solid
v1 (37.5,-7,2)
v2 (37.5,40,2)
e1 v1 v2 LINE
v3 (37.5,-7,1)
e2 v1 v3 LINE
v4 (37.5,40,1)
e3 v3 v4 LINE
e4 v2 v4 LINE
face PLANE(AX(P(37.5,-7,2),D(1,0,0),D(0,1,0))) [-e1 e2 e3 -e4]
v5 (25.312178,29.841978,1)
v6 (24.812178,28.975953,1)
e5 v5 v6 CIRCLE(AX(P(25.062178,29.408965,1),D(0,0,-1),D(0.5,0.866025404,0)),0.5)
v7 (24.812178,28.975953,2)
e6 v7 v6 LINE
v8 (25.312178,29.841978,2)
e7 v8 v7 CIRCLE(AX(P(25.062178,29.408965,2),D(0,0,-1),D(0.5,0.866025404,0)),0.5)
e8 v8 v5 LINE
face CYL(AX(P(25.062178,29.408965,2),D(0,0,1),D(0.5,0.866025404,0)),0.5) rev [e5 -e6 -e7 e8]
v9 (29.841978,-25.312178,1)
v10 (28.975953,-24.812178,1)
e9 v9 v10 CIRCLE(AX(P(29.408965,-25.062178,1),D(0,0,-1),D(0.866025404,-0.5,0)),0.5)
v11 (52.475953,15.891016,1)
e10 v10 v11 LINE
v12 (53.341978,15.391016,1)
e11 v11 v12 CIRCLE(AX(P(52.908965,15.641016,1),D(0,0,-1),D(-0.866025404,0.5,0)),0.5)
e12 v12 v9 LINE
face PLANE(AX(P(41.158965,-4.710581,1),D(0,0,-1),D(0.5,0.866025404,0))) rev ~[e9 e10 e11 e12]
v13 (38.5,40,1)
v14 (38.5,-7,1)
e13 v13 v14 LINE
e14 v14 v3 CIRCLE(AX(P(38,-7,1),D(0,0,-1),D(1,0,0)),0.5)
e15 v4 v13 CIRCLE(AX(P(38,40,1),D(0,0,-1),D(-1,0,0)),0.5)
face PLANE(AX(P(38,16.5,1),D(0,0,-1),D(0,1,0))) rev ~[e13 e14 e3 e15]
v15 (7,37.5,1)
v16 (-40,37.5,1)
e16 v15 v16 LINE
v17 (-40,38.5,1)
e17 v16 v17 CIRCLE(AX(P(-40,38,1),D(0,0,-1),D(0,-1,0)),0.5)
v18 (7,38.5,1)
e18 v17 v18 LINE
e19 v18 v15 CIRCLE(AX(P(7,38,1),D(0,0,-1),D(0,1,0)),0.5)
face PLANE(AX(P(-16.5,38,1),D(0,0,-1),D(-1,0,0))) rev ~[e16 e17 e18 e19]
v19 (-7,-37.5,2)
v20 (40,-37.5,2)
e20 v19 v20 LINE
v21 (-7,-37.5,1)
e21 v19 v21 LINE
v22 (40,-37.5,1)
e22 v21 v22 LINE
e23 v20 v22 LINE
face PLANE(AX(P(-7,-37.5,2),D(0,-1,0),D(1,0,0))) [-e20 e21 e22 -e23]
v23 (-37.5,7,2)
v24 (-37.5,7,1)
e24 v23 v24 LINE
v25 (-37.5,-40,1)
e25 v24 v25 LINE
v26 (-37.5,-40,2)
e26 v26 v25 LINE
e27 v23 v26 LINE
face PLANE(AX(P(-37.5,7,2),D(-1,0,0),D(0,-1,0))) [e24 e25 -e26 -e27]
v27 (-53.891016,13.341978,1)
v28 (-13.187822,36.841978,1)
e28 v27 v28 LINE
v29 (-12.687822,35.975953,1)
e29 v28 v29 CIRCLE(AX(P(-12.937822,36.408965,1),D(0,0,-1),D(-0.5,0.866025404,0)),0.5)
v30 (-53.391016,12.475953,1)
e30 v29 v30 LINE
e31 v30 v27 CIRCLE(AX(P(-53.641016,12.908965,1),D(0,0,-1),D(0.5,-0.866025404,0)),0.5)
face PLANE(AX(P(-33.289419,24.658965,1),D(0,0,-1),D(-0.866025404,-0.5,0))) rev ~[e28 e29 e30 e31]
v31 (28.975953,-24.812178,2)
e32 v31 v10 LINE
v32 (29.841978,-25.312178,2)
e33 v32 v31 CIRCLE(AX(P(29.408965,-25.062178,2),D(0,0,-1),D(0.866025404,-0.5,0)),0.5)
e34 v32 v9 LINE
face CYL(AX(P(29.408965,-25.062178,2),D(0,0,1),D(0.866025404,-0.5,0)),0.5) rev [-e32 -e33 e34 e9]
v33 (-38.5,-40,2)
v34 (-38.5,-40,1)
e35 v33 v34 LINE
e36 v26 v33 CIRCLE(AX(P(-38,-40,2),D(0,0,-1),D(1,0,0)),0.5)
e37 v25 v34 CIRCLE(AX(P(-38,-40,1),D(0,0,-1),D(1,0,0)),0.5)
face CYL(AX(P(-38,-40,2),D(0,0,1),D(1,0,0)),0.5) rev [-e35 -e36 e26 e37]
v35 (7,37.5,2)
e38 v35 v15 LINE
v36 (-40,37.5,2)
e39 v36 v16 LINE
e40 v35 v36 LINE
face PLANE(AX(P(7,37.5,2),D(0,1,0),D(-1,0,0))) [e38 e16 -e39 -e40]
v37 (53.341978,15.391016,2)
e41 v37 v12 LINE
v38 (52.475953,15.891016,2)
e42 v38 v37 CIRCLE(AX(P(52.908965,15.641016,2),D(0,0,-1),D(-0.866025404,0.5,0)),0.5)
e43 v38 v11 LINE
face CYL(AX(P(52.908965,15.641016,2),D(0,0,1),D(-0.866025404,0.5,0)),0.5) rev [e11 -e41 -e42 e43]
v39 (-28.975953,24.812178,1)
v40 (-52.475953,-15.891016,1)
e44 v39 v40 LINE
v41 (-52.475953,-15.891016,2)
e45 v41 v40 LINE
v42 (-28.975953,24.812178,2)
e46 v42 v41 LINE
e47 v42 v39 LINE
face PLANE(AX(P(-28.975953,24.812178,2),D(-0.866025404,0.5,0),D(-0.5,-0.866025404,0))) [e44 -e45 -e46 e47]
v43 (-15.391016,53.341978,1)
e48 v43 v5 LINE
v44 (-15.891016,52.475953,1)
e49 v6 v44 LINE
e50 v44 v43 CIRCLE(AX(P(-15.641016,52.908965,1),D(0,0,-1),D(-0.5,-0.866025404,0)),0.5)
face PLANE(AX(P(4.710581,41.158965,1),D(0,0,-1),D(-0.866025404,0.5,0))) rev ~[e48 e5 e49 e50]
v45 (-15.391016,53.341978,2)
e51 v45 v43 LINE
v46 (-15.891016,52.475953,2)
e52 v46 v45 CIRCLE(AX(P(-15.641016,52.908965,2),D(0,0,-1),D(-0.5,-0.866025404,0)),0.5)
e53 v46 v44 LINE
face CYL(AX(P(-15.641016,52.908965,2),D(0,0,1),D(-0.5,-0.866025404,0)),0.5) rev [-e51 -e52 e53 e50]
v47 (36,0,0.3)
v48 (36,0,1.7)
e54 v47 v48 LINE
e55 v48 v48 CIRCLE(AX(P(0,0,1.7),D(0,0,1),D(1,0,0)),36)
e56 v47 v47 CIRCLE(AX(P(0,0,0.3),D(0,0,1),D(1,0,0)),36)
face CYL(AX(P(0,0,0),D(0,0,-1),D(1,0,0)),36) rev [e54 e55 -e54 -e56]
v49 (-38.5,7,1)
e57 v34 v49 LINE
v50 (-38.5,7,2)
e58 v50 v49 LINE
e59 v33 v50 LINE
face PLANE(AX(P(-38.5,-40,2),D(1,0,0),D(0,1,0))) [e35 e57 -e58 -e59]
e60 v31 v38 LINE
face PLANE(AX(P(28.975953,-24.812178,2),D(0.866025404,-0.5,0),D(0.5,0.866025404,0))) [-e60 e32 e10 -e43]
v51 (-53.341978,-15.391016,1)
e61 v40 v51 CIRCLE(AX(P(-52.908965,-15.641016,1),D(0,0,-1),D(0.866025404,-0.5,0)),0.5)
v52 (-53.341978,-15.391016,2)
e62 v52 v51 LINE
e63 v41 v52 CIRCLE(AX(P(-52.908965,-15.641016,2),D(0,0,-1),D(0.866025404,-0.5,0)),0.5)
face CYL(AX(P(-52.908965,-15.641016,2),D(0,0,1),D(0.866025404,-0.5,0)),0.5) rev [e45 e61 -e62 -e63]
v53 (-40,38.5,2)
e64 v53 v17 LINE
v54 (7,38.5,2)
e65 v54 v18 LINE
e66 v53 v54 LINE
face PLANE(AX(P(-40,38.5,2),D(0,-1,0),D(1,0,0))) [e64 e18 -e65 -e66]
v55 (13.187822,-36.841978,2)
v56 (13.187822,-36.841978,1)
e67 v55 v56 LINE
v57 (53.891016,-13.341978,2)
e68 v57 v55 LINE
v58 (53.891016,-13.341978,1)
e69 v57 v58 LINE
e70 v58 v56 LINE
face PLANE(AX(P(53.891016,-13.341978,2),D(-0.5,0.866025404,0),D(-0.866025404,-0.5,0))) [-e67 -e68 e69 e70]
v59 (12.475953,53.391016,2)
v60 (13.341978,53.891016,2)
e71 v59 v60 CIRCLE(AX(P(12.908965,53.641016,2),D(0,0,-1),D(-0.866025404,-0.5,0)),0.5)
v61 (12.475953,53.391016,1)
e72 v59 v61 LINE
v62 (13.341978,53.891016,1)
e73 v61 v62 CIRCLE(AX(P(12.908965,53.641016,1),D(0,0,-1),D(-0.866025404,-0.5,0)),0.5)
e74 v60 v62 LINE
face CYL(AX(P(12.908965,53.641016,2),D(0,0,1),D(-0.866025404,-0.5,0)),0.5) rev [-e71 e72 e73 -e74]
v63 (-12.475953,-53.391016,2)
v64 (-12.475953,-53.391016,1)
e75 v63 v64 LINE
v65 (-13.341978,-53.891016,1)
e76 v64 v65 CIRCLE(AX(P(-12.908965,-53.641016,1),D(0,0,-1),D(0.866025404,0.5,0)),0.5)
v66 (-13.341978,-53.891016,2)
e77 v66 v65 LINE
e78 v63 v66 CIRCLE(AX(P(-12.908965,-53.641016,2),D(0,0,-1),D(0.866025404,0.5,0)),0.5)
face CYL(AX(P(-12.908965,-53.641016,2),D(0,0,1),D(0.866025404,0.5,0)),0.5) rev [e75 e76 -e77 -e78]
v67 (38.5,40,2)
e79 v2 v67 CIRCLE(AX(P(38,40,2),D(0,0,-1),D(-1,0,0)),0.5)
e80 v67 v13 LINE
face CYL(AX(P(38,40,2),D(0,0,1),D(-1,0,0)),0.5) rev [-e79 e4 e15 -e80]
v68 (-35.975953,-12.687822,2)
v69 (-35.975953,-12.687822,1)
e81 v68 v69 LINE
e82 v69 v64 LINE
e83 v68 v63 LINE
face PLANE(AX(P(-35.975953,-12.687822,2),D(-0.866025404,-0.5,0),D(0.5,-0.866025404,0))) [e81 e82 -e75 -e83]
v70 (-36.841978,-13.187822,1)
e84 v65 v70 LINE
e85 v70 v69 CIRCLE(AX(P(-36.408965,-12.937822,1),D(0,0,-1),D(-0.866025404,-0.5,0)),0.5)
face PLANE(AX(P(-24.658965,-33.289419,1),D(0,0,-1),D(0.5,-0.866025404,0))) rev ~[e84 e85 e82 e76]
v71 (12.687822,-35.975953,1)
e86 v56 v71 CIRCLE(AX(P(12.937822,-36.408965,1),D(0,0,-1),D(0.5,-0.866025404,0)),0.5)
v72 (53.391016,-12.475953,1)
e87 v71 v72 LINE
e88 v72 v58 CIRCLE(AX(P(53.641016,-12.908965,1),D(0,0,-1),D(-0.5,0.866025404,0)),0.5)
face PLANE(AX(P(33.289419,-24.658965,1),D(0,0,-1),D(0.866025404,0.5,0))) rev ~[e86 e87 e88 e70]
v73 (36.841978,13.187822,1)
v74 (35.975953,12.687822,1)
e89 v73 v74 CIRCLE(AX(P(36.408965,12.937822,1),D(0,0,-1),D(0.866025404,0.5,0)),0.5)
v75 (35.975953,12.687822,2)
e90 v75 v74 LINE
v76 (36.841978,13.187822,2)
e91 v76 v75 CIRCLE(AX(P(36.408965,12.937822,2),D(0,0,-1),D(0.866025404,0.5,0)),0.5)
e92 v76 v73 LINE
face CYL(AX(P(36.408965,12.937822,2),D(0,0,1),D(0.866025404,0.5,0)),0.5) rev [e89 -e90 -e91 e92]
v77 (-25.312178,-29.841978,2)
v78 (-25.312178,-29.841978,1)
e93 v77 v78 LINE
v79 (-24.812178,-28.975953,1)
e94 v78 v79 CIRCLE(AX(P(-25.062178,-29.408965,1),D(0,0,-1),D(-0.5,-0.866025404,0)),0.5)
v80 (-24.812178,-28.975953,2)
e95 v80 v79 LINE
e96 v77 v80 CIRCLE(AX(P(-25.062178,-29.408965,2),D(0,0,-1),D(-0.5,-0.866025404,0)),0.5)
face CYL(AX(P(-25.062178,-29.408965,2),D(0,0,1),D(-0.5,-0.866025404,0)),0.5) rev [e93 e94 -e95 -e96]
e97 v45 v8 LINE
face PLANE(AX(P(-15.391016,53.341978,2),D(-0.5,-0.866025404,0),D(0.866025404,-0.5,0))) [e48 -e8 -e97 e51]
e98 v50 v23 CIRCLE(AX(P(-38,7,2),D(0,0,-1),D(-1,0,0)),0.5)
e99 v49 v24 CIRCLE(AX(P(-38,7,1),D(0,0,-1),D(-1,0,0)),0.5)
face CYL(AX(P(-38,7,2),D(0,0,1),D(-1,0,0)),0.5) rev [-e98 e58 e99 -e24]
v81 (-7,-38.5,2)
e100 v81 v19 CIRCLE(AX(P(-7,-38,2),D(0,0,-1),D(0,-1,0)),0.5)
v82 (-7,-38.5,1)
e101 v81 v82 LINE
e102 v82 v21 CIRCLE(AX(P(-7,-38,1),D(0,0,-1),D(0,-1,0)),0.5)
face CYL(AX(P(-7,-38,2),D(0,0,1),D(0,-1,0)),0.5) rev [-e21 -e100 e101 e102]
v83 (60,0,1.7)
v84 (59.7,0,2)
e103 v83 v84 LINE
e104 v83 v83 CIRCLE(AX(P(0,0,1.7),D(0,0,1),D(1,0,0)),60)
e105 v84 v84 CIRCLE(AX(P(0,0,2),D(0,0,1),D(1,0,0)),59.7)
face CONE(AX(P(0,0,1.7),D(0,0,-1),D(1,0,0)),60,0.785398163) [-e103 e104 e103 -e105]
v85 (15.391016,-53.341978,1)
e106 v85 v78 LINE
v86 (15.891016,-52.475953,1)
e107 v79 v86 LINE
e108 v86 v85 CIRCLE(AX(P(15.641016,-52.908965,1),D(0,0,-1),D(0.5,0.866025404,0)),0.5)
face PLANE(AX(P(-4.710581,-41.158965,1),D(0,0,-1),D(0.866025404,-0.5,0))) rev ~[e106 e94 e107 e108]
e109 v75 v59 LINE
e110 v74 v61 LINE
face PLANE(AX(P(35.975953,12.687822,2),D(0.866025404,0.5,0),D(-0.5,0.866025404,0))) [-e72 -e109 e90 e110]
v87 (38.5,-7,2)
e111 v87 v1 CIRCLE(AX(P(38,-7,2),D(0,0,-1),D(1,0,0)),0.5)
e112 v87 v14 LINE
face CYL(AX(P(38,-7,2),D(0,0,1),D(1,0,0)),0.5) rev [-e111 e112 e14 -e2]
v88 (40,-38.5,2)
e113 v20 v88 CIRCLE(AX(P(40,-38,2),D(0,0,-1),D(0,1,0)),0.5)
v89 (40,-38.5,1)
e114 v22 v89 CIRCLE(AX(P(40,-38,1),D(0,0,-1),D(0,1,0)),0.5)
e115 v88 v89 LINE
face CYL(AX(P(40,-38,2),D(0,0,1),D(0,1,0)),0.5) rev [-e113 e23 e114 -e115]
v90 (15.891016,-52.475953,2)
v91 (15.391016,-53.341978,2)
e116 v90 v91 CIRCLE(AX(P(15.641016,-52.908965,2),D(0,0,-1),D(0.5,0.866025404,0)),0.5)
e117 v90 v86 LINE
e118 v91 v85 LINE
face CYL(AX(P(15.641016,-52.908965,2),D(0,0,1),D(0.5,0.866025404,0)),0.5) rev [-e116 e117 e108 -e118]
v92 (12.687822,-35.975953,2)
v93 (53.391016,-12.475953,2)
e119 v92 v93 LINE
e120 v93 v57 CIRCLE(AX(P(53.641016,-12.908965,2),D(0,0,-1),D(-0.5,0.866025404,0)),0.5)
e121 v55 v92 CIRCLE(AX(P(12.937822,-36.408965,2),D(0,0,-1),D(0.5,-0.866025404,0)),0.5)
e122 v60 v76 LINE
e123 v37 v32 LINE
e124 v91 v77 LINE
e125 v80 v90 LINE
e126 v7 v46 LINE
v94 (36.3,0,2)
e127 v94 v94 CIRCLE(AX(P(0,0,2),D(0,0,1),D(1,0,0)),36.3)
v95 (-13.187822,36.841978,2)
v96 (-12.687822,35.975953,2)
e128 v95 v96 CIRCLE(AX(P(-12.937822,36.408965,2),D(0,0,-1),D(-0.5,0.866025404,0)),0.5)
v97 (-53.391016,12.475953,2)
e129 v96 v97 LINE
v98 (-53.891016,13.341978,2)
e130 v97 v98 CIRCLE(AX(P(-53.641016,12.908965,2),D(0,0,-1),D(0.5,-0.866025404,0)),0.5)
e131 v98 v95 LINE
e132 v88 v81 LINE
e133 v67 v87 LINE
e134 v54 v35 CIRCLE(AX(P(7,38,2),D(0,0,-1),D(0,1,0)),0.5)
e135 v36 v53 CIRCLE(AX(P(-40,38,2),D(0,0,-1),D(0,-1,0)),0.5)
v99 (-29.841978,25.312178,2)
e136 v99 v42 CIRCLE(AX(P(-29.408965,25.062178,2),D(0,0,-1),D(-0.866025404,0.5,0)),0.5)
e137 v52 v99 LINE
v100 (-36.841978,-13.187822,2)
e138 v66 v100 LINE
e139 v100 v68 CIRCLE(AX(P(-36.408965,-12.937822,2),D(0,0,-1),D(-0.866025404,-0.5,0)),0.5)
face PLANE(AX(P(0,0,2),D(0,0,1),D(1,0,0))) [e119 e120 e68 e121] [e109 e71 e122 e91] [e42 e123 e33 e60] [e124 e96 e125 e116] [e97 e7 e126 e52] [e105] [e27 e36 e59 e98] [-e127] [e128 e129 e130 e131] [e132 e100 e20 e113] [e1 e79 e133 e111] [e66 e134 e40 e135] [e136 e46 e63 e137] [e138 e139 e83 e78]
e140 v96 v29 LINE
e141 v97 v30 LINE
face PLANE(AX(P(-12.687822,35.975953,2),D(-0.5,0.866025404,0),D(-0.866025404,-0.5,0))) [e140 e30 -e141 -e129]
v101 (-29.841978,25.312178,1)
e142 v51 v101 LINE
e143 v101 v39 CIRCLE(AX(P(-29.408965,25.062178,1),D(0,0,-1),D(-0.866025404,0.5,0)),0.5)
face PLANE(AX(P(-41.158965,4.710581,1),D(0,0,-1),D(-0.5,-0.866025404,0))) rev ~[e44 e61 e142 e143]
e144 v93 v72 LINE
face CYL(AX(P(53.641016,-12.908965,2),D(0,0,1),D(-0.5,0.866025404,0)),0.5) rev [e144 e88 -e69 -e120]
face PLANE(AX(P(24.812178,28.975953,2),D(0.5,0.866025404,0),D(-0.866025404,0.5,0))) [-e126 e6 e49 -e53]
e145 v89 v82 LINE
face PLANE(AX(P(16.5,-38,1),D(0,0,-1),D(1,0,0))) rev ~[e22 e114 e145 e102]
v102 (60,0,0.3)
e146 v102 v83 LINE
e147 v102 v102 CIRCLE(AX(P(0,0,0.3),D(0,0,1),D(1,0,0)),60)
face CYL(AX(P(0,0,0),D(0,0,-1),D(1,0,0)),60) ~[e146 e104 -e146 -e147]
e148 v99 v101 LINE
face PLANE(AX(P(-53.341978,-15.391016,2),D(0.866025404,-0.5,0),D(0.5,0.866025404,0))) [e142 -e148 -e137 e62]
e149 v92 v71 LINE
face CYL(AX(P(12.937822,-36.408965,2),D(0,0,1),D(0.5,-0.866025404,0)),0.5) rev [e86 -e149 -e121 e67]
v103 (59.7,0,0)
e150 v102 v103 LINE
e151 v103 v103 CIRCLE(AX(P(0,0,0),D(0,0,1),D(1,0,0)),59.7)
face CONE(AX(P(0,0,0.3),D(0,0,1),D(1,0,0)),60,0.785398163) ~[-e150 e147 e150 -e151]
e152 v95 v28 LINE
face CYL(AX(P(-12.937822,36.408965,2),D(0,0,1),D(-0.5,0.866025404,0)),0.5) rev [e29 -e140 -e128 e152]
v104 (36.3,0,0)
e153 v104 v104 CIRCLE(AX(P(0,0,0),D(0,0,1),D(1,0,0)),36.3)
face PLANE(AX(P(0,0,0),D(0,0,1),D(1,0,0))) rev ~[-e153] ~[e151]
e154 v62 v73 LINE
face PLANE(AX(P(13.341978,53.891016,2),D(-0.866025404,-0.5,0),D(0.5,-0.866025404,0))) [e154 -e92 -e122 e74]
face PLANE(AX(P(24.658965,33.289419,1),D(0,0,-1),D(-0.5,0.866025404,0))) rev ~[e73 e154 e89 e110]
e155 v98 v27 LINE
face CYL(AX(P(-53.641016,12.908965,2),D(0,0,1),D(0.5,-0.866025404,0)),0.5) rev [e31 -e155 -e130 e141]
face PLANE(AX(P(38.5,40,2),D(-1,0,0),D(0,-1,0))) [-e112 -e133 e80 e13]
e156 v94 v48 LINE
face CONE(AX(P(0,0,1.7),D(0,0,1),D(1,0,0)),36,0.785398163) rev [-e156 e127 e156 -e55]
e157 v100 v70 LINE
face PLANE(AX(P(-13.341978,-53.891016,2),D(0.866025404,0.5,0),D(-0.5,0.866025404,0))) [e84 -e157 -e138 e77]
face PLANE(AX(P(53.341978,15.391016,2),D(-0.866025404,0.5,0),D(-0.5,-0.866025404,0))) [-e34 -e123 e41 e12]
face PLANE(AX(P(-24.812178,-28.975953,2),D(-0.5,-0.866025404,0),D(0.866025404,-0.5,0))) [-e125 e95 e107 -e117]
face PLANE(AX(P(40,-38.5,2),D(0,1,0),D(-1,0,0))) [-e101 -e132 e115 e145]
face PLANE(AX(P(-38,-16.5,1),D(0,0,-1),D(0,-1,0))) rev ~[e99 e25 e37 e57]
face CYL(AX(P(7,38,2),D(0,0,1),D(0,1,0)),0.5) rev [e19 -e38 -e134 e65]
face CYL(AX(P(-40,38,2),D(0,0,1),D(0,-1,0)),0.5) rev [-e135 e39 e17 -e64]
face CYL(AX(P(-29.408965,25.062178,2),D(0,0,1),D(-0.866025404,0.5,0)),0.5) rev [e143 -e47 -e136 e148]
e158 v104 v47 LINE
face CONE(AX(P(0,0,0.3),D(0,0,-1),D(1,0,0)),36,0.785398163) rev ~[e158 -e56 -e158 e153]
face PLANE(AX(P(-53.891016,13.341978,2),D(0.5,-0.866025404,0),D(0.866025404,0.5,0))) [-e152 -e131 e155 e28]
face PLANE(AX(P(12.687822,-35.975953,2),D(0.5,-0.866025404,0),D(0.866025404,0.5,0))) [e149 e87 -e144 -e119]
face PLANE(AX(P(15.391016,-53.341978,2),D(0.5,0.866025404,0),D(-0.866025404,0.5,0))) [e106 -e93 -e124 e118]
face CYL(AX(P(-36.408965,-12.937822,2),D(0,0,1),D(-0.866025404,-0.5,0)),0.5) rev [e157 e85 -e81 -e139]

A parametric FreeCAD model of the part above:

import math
import FreeCAD as App
import Part
import Sketcher

V = App.Vector
Q = App.Units.Quantity


def edges_at(feature, points):
    """Names of the edges that pass closest to the given points."""
    edges = feature.Shape.Edges
    near = lambda p: min(range(len(edges)), key=lambda i: edges[i].distToShape(Part.Vertex(*p))[0])
    return sorted({f"Edge{near(p) + 1}" for p in points})

doc = App.newDocument("Part")
body = doc.addObject("PartDesign::Body", "Body")

# Sketch on XY plane
sketch1 = body.newObject("Sketcher::SketchObject", "Sketch")
sketch1.AttachmentSupport = (doc.getObject("XY_Plane"), [""])
sketch1.MapMode = "FlatFace"
sketch1.addGeometry(Part.Circle(V(0, 0, 0), V(0, 0, 1), 60), False)
sketch1.addGeometry(Part.Circle(V(0, 0, 0), V(0, 0, 1), 36), False)
sketch1.addConstraint(Sketcher.Constraint("Coincident", 0, 3, -1, 1))
sketch1.addConstraint(Sketcher.Constraint("Coincident", 1, 3, -1, 1))
sketch1.addConstraint(Sketcher.Constraint("Diameter", 0, Q("120 mm")))
sketch1.addConstraint(Sketcher.Constraint("Diameter", 1, Q("72 mm")))
pad1 = body.newObject("PartDesign::Pad", "Pad")
pad1.Profile = sketch1
pad1.Length = 2

# Sketch on XY plane
sketch2 = body.newObject("Sketcher::SketchObject", "Sketch001")
sketch2.AttachmentSupport = (doc.getObject("XY_Plane"), [""])
sketch2.MapMode = "FlatFace"
sketch2.AttachmentOffset = App.Placement(V(0, 0, 2), App.Rotation())
sketch2.addGeometry(Part.LineSegment(V(7, 38.5, 0), V(-40, 38.5, 0)), False)
sketch2.addGeometry(Part.ArcOfCircle(Part.Circle(V(-40, 38, 0), V(0, 0, 1), 0.5), math.radians(90), math.radians(270)), False)
sketch2.addGeometry(Part.LineSegment(V(-40, 37.5, 0), V(7, 37.5, 0)), False)
sketch2.addGeometry(Part.ArcOfCircle(Part.Circle(V(7, 38, 0), V(0, 0, 1), 0.5), math.radians(-90), math.radians(90)), False)
sketch2.addConstraint(Sketcher.Constraint("Tangent", 0, 2, 1, 1))
sketch2.addConstraint(Sketcher.Constraint("Tangent", 1, 2, 2, 1))
sketch2.addConstraint(Sketcher.Constraint("Tangent", 2, 2, 3, 1))
sketch2.addConstraint(Sketcher.Constraint("Tangent", 3, 2, 0, 1))
sketch2.addConstraint(Sketcher.Constraint("Horizontal", 0))
sketch2.addConstraint(Sketcher.Constraint("Horizontal", 2))
sketch2.addConstraint(Sketcher.Constraint("Radius", 1, Q("0.5 mm")))
sketch2.addConstraint(Sketcher.Constraint("DistanceX", 0, 2, 0, 1, Q("47 mm")))
sketch2.addConstraint(Sketcher.Constraint("DistanceX", 1, 3, -1, 1, Q("40 mm")))
sketch2.addConstraint(Sketcher.Constraint("DistanceY", -1, 1, 1, 3, Q("38 mm")))
pocket1 = body.newObject("PartDesign::Pocket", "Pocket")
pocket1.Profile = sketch2
pocket1.Length = 1
doc.recompute()

polarpattern = body.newObject("PartDesign::PolarPattern", "PolarPattern")
polarpattern.Originals = [pocket1]
polarpattern.Axis = (doc.getObject("Z_Axis"), [""])
polarpattern.Angle = 360
polarpattern.Occurrences = 12
body.Tip = polarpattern
doc.recompute()

chamfer = body.newObject("PartDesign::Chamfer", "Chamfer")
chamfer.Base = (polarpattern, edges_at(polarpattern, [
    (-60, 0, 0),
    (-60, 0, 2),
    (-36, 0, 0),
    (-36, 0, 2),
]))
chamfer.Size = 0.3

doc.recompute()
